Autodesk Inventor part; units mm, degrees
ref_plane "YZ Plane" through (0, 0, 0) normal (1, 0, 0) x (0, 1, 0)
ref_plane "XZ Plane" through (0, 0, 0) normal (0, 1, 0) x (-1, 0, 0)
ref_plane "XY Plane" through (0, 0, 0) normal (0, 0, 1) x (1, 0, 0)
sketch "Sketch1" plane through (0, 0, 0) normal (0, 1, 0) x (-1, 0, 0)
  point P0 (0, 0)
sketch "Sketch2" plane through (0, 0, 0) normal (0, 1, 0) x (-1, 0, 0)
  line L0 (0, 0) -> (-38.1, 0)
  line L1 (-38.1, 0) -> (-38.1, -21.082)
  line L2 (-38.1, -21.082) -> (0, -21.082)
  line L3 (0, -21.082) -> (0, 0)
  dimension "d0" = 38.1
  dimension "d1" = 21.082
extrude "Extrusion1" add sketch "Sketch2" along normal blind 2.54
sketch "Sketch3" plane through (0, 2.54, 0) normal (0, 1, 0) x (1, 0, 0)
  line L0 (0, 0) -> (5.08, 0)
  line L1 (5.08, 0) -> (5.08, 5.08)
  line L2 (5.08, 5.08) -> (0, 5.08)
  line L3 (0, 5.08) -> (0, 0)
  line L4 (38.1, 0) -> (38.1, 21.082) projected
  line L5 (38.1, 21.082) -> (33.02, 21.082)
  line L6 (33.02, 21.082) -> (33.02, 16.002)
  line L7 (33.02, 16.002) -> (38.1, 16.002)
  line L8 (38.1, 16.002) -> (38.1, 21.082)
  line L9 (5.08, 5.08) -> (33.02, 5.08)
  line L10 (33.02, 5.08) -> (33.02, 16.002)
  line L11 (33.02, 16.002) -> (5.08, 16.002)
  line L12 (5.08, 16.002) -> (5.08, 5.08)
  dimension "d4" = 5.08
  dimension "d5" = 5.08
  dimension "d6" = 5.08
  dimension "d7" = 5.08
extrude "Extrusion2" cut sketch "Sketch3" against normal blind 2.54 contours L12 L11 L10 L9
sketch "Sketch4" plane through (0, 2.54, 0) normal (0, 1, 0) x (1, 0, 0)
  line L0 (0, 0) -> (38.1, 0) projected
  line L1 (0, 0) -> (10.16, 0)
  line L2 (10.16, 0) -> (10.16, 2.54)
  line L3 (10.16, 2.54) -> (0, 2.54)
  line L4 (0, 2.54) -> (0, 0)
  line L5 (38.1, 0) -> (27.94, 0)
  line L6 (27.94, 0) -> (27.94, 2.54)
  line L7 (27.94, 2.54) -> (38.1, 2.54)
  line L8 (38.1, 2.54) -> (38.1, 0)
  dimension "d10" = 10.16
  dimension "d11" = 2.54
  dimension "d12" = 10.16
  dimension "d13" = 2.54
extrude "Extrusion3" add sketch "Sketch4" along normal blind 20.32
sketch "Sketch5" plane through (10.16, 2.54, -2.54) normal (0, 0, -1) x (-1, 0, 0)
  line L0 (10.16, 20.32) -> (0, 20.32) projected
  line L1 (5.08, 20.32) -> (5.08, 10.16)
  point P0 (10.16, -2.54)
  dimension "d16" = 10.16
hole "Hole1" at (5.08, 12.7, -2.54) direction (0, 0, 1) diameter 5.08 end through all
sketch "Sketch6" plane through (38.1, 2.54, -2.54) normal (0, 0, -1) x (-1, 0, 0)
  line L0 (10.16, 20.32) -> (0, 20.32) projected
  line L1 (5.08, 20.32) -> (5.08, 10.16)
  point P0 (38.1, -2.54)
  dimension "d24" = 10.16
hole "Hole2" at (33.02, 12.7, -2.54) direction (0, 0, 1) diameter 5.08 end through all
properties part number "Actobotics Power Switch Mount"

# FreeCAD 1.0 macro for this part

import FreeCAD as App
import Part
import Sketcher

V = App.Vector
Q = App.Units.Quantity

doc = App.newDocument("Part")
body = doc.addObject("PartDesign::Body", "Body")

# Sketch on XZ plane
sketch1 = body.newObject("Sketcher::SketchObject", "Sketch")
sketch1.AttachmentSupport = (doc.getObject("XZ_Plane"), [""])
sketch1.MapMode = "FlatFace"
sketch1.addGeometry([
    Part.LineSegment(V(0, -21, 0), V(0, 0, 0)),
    Part.LineSegment(V(0, 0, 0), V(38, 0, 0)),
    Part.LineSegment(V(38, 0, 0), V(38, -21, 0)),
    Part.LineSegment(V(38, -21, 0), V(0, -21, 0)),
], False)
sketch1.addConstraint([
    Sketcher.Constraint("Coincident", 0, 2, 1, 1),
    Sketcher.Constraint("Coincident", 1, 2, 2, 1),
    Sketcher.Constraint("Coincident", 2, 2, 3, 1),
    Sketcher.Constraint("Coincident", 3, 2, 0, 1),
    Sketcher.Constraint("Vertical", 0),
    Sketcher.Constraint("Horizontal", 1),
    Sketcher.Constraint("Vertical", 2),
    Sketcher.Constraint("Horizontal", 3),
    Sketcher.Constraint("Coincident", 0, 2, -1, 1),
    Sketcher.Constraint("DistanceX", 1, 1, 1, 2, Q("1.5 in")),
    Sketcher.Constraint("DistanceY", 0, 1, 0, 2, Q("0.83 in")),
])
pad1 = body.newObject("PartDesign::Pad", "Pad")
pad1.Profile = sketch1
pad1.Length = Q("0.1 in")
pad1.Reversed = True

# Sketch on XZ plane
sketch2 = body.newObject("Sketcher::SketchObject", "Sketch001")
sketch2.AttachmentSupport = (doc.getObject("XZ_Plane"), [""])
sketch2.MapMode = "FlatFace"
sketch2.AttachmentOffset = App.Placement(V(0, 0, -0.1 * 25.4), App.Rotation())
sketch2.addGeometry([
    Part.LineSegment(V(5, -16, 0), V(5, -5, 0)),
    Part.LineSegment(V(5, -5, 0), V(33, -5, 0)),
    Part.LineSegment(V(33, -5, 0), V(33, -16, 0)),
    Part.LineSegment(V(33, -16, 0), V(5, -16, 0)),
], False)
sketch2.addConstraint([
    Sketcher.Constraint("Coincident", 0, 2, 1, 1),
    Sketcher.Constraint("Coincident", 1, 2, 2, 1),
    Sketcher.Constraint("Coincident", 2, 2, 3, 1),
    Sketcher.Constraint("Coincident", 3, 2, 0, 1),
    Sketcher.Constraint("Vertical", 0),
    Sketcher.Constraint("Horizontal", 1),
    Sketcher.Constraint("Vertical", 2),
    Sketcher.Constraint("Horizontal", 3),
    Sketcher.Constraint("DistanceX", -1, 1, 0, 2, Q("0.2 in")),
    Sketcher.Constraint("DistanceY", 0, 2, -1, 1, Q("0.2 in")),
    Sketcher.Constraint("DistanceX", 1, 1, 1, 2, Q("1.1 in")),
    Sketcher.Constraint("DistanceY", 0, 1, 0, 2, Q("0.43 in")),
])
pocket1 = body.newObject("PartDesign::Pocket", "Pocket")
pocket1.Profile = sketch2
pocket1.Length = Q("0.1 in")
pocket1.Reversed = True

# Sketch on XZ plane
sketch3 = body.newObject("Sketcher::SketchObject", "Sketch002")
sketch3.AttachmentSupport = (doc.getObject("XZ_Plane"), [""])
sketch3.MapMode = "FlatFace"
sketch3.AttachmentOffset = App.Placement(V(0, 0, -0.1 * 25.4), App.Rotation())
sketch3.addGeometry([
    Part.LineSegment(V(0, -2.5, 0), V(0, 0, 0)),  # 0
    Part.LineSegment(V(0, 0, 0), V(10.2, 0, 0)),  # 1
    Part.LineSegment(V(10.2, 0, 0), V(10.2, -2.5, 0)),  # 2
    Part.LineSegment(V(10.2, -2.5, 0), V(0, -2.5, 0)),  # 3
    Part.LineSegment(V(27.9, -2.5, 0), V(27.9, 0, 0)),  # 4
    Part.LineSegment(V(27.9, 0, 0), V(38.1, 0, 0)),  # 5
    Part.LineSegment(V(38.1, 0, 0), V(38.1, -2.5, 0)),  # 6
    Part.LineSegment(V(38.1, -2.5, 0), V(27.9, -2.5, 0)),  # 7
], False)
sketch3.addConstraint([
    Sketcher.Constraint("Coincident", 0, 2, 1, 1),
    Sketcher.Constraint("Coincident", 1, 2, 2, 1),
    Sketcher.Constraint("Coincident", 2, 2, 3, 1),
    Sketcher.Constraint("Coincident", 3, 2, 0, 1),
    Sketcher.Constraint("Coincident", 4, 2, 5, 1),
    Sketcher.Constraint("Coincident", 5, 2, 6, 1),
    Sketcher.Constraint("Coincident", 6, 2, 7, 1),
    Sketcher.Constraint("Coincident", 7, 2, 4, 1),
    Sketcher.Constraint("Vertical", 0),
    Sketcher.Constraint("Horizontal", 1),
    Sketcher.Constraint("Vertical", 2),
    Sketcher.Constraint("Horizontal", 3),
    Sketcher.Constraint("Vertical", 4),
    Sketcher.Constraint("Horizontal", 5),
    Sketcher.Constraint("Vertical", 6),
    Sketcher.Constraint("Horizontal", 7),
    Sketcher.Constraint("Coincident", 0, 2, -1, 1),
    Sketcher.Constraint("PointOnObject", 4, 2, -1),
    Sketcher.Constraint("Horizontal", 3, 2, 6, 2),
    Sketcher.Constraint("Equal", 3, 5),
    Sketcher.Constraint("DistanceX", 1, 1, 1, 2, Q("0.4 in")),
    Sketcher.Constraint("DistanceY", 0, 1, 0, 2, Q("0.1 in")),
    Sketcher.Constraint("DistanceX", -1, 1, 4, 2, Q("1.1 in")),
])
pad2 = body.newObject("PartDesign::Pad", "Pad001")
pad2.Profile = sketch3
pad2.Length = Q("0.8 in")
pad2.Reversed = True

# Sketch on XY plane
sketch4 = body.newObject("Sketcher::SketchObject", "Sketch003")
sketch4.AttachmentSupport = (doc.getObject("XY_Plane"), [""])
sketch4.MapMode = "FlatFace"
sketch4.AttachmentOffset = App.Placement(V(0, 0, -0.1 * 25.4), App.Rotation())
sketch4.addGeometry(Part.Circle(V(5.1, 12.7, 0), V(0, 0, 1), 2.5), False)
sketch4.addConstraint([
    Sketcher.Constraint("Diameter", 0, Q("0.2 in")),
    Sketcher.Constraint("DistanceX", -1, 1, 0, 3, Q("0.2 in")),
    Sketcher.Constraint("DistanceY", -1, 1, 0, 3, Q("0.5 in")),
])
doc.recompute()
hole = body.newObject("PartDesign::Hole", "Hole")
hole.Profile = sketch4
hole.ThreadType = "None"
hole.Diameter = Q("0.2 in")
hole.DepthType = "ThroughAll"
hole.Reversed = True

# Sketch on XY plane
sketch5 = body.newObject("Sketcher::SketchObject", "Sketch004")
sketch5.AttachmentSupport = (doc.getObject("XY_Plane"), [""])
sketch5.MapMode = "FlatFace"
sketch5.AttachmentOffset = App.Placement(V(0, 0, -0.1 * 25.4), App.Rotation())
sketch5.addGeometry(Part.Circle(V(33, 12.7, 0), V(0, 0, 1), 2.5), False)
sketch5.addConstraint([
    Sketcher.Constraint("Diameter", 0, Q("0.2 in")),
    Sketcher.Constraint("DistanceX", -1, 1, 0, 3, Q("1.3 in")),
    Sketcher.Constraint("DistanceY", -1, 1, 0, 3, Q("0.5 in")),
])
doc.recompute()
hole2 = body.newObject("PartDesign::Hole", "Hole001")
hole2.Profile = sketch5
hole2.ThreadType = "None"
hole2.Diameter = Q("0.2 in")
hole2.DepthType = "ThroughAll"
hole2.Reversed = True

doc.recompute()
